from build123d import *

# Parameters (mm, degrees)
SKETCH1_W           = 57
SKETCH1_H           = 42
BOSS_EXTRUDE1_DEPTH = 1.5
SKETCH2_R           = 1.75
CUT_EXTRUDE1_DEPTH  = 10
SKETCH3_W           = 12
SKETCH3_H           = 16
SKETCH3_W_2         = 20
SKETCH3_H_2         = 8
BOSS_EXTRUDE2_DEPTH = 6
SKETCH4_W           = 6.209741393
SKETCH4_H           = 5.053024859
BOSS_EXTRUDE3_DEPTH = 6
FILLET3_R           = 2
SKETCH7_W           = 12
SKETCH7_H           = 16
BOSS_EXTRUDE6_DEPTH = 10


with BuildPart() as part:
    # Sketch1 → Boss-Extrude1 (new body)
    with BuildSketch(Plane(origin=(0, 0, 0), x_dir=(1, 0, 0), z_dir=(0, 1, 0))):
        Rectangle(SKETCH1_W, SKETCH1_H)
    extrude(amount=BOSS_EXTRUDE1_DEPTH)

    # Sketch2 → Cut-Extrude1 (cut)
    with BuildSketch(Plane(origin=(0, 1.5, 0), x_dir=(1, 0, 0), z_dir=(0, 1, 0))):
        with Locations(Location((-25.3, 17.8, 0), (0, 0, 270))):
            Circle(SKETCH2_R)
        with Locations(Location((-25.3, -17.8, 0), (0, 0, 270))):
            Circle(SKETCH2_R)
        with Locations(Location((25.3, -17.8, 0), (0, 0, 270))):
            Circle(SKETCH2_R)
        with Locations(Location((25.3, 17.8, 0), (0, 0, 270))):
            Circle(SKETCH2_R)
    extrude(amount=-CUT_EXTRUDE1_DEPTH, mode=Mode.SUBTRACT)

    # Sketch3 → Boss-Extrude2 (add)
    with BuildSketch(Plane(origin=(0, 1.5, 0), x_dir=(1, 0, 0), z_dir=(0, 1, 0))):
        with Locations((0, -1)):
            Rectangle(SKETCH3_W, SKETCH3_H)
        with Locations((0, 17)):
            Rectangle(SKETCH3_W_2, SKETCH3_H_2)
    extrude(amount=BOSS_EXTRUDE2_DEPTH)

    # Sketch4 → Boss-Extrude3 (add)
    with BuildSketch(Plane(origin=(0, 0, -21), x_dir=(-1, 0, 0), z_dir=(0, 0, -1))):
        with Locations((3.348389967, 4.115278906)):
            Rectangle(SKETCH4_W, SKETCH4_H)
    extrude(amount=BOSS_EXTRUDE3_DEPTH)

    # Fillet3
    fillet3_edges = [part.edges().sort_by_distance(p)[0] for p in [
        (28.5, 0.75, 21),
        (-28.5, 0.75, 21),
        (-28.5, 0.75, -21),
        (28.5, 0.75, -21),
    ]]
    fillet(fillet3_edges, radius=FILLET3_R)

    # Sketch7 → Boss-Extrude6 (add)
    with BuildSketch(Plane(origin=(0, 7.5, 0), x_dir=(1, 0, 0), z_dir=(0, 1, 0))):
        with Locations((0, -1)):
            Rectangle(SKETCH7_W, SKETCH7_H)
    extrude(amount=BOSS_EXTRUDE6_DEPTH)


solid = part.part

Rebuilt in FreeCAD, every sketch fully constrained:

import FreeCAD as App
import Part
import Sketcher
Q = App.Units.Quantity


def edges_at(feature, points):
    """Names of the edges that pass closest to the given points."""
    edges = feature.Shape.Edges
    near = lambda p: min(range(len(edges)), key=lambda i: edges[i].distToShape(Part.Vertex(*p))[0])
    return sorted({f"Edge{near(p) + 1}" for p in points})


def add_polygon(sketch, points):
    """Adds a closed chain of lines whose ends are joined by coincident constraints."""
    first, n = sketch.GeometryCount, len(points)
    for a, b in zip(points, points[1:] + points[:1]):
        sketch.addGeometry(Part.LineSegment(App.Vector(*a, 0), App.Vector(*b, 0)), False)
    for i in range(n):
        sketch.addConstraint(Sketcher.Constraint("Coincident", first + i, 2, first + (i + 1) % n, 1))

doc = App.newDocument("Part")
body = doc.addObject("PartDesign::Body", "Body")

# Sketch on XZ plane
sketch1 = body.newObject("Sketcher::SketchObject", "Sketch")
sketch1.AttachmentSupport = (doc.getObject("XZ_Plane"), [""])
sketch1.MapMode = "FlatFace"
add_polygon(sketch1, [(-28, -21), (-28, 21), (28, 21), (28, -21)])  # lines 0-3
sketch1.addConstraint([
    Sketcher.Constraint("Vertical", 0),
    Sketcher.Constraint("Horizontal", 1),
    Sketcher.Constraint("Vertical", 2),
    Sketcher.Constraint("Horizontal", 3),
    Sketcher.Constraint("Symmetric", 0, 2, 2, 2, -1, 1),
    Sketcher.Constraint("DistanceX", 1, 1, 1, 2, Q("57 mm")),
    Sketcher.Constraint("DistanceY", 0, 1, 0, 2, Q("42 mm")),
])
pad1 = body.newObject("PartDesign::Pad", "Pad")
pad1.Profile = sketch1
pad1.Length = 1.5
pad1.Reversed = True

# Sketch on XZ plane
sketch2 = body.newObject("Sketcher::SketchObject", "Sketch001")
sketch2.AttachmentSupport = (doc.getObject("XZ_Plane"), [""])
sketch2.MapMode = "FlatFace"
sketch2.AttachmentOffset = App.Placement(App.Vector(0, 0, -1.5), App.Rotation())
sketch2.addGeometry([
    Part.Circle(App.Vector(-25.3, -17.8, 0), App.Vector(0, 0, 1), 1.8),
    Part.Circle(App.Vector(-25.3, 17.8, 0), App.Vector(0, 0, 1), 1.8),
    Part.Circle(App.Vector(25.3, 17.8, 0), App.Vector(0, 0, 1), 1.8),
    Part.Circle(App.Vector(25.3, -17.8, 0), App.Vector(0, 0, 1), 1.8),
], False)
sketch2.addConstraint([
    Sketcher.Constraint("Equal", 0, 1),
    Sketcher.Constraint("Equal", 1, 2),
    Sketcher.Constraint("Equal", 2, 3),
    Sketcher.Constraint("Symmetric", 0, 3, 2, 3, -1, 1),
    Sketcher.Constraint("Symmetric", 1, 3, 3, 3, -1, 1),
    Sketcher.Constraint("Symmetric", 1, 3, 2, 3, -2),
    Sketcher.Constraint("Diameter", 0, Q("3.5 mm")),
    Sketcher.Constraint("DistanceX", 0, 3, -1, 1, Q("25.3 mm")),
    Sketcher.Constraint("DistanceY", 0, 3, -1, 1, Q("17.8 mm")),
])
pocket1 = body.newObject("PartDesign::Pocket", "Pocket")
pocket1.Profile = sketch2
pocket1.Length = 10
pocket1.Reversed = True

# Sketch on XZ plane
sketch3 = body.newObject("Sketcher::SketchObject", "Sketch002")
sketch3.AttachmentSupport = (doc.getObject("XZ_Plane"), [""])
sketch3.MapMode = "FlatFace"
sketch3.AttachmentOffset = App.Placement(App.Vector(0, 0, -1.5), App.Rotation())
add_polygon(sketch3, [(-6, -7), (-6, 9), (6, 9), (6, -7)])  # lines 0-3
add_polygon(sketch3, [(-10, -21), (-10, -13), (10, -13), (10, -21)])  # lines 4-7
sketch3.addConstraint([
    Sketcher.Constraint("Vertical", 0),
    Sketcher.Constraint("Horizontal", 1),
    Sketcher.Constraint("Vertical", 2),
    Sketcher.Constraint("Horizontal", 3),
    Sketcher.Constraint("Vertical", 4),
    Sketcher.Constraint("Horizontal", 5),
    Sketcher.Constraint("Vertical", 6),
    Sketcher.Constraint("Horizontal", 7),
    Sketcher.Constraint("DistanceX", 1, 1, 1, 2, Q("12 mm")),
    Sketcher.Constraint("DistanceX", 5, 1, 5, 2, Q("20 mm")),
    Sketcher.Constraint("DistanceY", 0, 1, 0, 2, Q("16 mm")),
    Sketcher.Constraint("DistanceY", 4, 1, 4, 2, Q("8 mm")),
    Sketcher.Constraint("DistanceX", 0, 2, -1, 1, Q("6 mm")),
    Sketcher.Constraint("DistanceY", -1, 1, 0, 2, Q("9 mm")),
    Sketcher.Constraint("DistanceX", 4, 2, -1, 1, Q("10 mm")),
    Sketcher.Constraint("DistanceY", 4, 2, -1, 1, Q("13 mm")),
])
pad2 = body.newObject("PartDesign::Pad", "Pad001")
pad2.Profile = sketch3
pad2.Length = 6
pad2.Reversed = True

# Sketch on XY plane
sketch4 = body.newObject("Sketcher::SketchObject", "Sketch003")
sketch4.AttachmentSupport = (doc.getObject("XY_Plane"), [""])
sketch4.MapMode = "FlatFace"
sketch4.AttachmentOffset = App.Placement(App.Vector(0, 0, -21), App.Rotation())
add_polygon(sketch4, [(0, 7), (0, 2), (-6, 2), (-6, 7)])  # lines 0-3
sketch4.addConstraint([
    Sketcher.Constraint("Vertical", 0),
    Sketcher.Constraint("Horizontal", 1),
    Sketcher.Constraint("Vertical", 2),
    Sketcher.Constraint("Horizontal", 3),
    Sketcher.Constraint("DistanceX", 1, 2, 1, 1, Q("6.209741 mm")),
    Sketcher.Constraint("DistanceY", 0, 2, 0, 1, Q("5.053025 mm")),
    Sketcher.Constraint("DistanceX", 0, 2, -1, 1, Q("0.243519 mm")),
    Sketcher.Constraint("DistanceY", -1, 1, 2, 2, Q("6.641791 mm")),
])
pad3 = body.newObject("PartDesign::Pad", "Pad002")
pad3.Profile = sketch4
pad3.Length = 6
pad3.Reversed = True
doc.recompute()

fillet = body.newObject("PartDesign::Fillet", "Fillet")
fillet.Base = (pad3, edges_at(pad3, [
    (28.5, 0.75, 21),
    (-28.5, 0.75, 21),
    (-28.5, 0.75, -21),
    (28.5, 0.75, -21),
]))
fillet.Radius = 2

# Sketch on XZ plane
sketch5 = body.newObject("Sketcher::SketchObject", "Sketch004")
sketch5.AttachmentSupport = (doc.getObject("XZ_Plane"), [""])
sketch5.MapMode = "FlatFace"
sketch5.AttachmentOffset = App.Placement(App.Vector(0, 0, -7.5), App.Rotation())
add_polygon(sketch5, [(-6, -7), (-6, 9), (6, 9), (6, -7)])  # lines 0-3
sketch5.addConstraint([
    Sketcher.Constraint("Vertical", 0),
    Sketcher.Constraint("Horizontal", 1),
    Sketcher.Constraint("Vertical", 2),
    Sketcher.Constraint("Horizontal", 3),
    Sketcher.Constraint("DistanceX", 1, 1, 1, 2, Q("12 mm")),
    Sketcher.Constraint("DistanceY", 0, 1, 0, 2, Q("16 mm")),
    Sketcher.Constraint("DistanceX", 0, 2, -1, 1, Q("6 mm")),
    Sketcher.Constraint("DistanceY", -1, 1, 0, 2, Q("9 mm")),
])
pad4 = body.newObject("PartDesign::Pad", "Pad003")
pad4.Profile = sketch5
pad4.Length = 10
pad4.Reversed = True

doc.recompute()
